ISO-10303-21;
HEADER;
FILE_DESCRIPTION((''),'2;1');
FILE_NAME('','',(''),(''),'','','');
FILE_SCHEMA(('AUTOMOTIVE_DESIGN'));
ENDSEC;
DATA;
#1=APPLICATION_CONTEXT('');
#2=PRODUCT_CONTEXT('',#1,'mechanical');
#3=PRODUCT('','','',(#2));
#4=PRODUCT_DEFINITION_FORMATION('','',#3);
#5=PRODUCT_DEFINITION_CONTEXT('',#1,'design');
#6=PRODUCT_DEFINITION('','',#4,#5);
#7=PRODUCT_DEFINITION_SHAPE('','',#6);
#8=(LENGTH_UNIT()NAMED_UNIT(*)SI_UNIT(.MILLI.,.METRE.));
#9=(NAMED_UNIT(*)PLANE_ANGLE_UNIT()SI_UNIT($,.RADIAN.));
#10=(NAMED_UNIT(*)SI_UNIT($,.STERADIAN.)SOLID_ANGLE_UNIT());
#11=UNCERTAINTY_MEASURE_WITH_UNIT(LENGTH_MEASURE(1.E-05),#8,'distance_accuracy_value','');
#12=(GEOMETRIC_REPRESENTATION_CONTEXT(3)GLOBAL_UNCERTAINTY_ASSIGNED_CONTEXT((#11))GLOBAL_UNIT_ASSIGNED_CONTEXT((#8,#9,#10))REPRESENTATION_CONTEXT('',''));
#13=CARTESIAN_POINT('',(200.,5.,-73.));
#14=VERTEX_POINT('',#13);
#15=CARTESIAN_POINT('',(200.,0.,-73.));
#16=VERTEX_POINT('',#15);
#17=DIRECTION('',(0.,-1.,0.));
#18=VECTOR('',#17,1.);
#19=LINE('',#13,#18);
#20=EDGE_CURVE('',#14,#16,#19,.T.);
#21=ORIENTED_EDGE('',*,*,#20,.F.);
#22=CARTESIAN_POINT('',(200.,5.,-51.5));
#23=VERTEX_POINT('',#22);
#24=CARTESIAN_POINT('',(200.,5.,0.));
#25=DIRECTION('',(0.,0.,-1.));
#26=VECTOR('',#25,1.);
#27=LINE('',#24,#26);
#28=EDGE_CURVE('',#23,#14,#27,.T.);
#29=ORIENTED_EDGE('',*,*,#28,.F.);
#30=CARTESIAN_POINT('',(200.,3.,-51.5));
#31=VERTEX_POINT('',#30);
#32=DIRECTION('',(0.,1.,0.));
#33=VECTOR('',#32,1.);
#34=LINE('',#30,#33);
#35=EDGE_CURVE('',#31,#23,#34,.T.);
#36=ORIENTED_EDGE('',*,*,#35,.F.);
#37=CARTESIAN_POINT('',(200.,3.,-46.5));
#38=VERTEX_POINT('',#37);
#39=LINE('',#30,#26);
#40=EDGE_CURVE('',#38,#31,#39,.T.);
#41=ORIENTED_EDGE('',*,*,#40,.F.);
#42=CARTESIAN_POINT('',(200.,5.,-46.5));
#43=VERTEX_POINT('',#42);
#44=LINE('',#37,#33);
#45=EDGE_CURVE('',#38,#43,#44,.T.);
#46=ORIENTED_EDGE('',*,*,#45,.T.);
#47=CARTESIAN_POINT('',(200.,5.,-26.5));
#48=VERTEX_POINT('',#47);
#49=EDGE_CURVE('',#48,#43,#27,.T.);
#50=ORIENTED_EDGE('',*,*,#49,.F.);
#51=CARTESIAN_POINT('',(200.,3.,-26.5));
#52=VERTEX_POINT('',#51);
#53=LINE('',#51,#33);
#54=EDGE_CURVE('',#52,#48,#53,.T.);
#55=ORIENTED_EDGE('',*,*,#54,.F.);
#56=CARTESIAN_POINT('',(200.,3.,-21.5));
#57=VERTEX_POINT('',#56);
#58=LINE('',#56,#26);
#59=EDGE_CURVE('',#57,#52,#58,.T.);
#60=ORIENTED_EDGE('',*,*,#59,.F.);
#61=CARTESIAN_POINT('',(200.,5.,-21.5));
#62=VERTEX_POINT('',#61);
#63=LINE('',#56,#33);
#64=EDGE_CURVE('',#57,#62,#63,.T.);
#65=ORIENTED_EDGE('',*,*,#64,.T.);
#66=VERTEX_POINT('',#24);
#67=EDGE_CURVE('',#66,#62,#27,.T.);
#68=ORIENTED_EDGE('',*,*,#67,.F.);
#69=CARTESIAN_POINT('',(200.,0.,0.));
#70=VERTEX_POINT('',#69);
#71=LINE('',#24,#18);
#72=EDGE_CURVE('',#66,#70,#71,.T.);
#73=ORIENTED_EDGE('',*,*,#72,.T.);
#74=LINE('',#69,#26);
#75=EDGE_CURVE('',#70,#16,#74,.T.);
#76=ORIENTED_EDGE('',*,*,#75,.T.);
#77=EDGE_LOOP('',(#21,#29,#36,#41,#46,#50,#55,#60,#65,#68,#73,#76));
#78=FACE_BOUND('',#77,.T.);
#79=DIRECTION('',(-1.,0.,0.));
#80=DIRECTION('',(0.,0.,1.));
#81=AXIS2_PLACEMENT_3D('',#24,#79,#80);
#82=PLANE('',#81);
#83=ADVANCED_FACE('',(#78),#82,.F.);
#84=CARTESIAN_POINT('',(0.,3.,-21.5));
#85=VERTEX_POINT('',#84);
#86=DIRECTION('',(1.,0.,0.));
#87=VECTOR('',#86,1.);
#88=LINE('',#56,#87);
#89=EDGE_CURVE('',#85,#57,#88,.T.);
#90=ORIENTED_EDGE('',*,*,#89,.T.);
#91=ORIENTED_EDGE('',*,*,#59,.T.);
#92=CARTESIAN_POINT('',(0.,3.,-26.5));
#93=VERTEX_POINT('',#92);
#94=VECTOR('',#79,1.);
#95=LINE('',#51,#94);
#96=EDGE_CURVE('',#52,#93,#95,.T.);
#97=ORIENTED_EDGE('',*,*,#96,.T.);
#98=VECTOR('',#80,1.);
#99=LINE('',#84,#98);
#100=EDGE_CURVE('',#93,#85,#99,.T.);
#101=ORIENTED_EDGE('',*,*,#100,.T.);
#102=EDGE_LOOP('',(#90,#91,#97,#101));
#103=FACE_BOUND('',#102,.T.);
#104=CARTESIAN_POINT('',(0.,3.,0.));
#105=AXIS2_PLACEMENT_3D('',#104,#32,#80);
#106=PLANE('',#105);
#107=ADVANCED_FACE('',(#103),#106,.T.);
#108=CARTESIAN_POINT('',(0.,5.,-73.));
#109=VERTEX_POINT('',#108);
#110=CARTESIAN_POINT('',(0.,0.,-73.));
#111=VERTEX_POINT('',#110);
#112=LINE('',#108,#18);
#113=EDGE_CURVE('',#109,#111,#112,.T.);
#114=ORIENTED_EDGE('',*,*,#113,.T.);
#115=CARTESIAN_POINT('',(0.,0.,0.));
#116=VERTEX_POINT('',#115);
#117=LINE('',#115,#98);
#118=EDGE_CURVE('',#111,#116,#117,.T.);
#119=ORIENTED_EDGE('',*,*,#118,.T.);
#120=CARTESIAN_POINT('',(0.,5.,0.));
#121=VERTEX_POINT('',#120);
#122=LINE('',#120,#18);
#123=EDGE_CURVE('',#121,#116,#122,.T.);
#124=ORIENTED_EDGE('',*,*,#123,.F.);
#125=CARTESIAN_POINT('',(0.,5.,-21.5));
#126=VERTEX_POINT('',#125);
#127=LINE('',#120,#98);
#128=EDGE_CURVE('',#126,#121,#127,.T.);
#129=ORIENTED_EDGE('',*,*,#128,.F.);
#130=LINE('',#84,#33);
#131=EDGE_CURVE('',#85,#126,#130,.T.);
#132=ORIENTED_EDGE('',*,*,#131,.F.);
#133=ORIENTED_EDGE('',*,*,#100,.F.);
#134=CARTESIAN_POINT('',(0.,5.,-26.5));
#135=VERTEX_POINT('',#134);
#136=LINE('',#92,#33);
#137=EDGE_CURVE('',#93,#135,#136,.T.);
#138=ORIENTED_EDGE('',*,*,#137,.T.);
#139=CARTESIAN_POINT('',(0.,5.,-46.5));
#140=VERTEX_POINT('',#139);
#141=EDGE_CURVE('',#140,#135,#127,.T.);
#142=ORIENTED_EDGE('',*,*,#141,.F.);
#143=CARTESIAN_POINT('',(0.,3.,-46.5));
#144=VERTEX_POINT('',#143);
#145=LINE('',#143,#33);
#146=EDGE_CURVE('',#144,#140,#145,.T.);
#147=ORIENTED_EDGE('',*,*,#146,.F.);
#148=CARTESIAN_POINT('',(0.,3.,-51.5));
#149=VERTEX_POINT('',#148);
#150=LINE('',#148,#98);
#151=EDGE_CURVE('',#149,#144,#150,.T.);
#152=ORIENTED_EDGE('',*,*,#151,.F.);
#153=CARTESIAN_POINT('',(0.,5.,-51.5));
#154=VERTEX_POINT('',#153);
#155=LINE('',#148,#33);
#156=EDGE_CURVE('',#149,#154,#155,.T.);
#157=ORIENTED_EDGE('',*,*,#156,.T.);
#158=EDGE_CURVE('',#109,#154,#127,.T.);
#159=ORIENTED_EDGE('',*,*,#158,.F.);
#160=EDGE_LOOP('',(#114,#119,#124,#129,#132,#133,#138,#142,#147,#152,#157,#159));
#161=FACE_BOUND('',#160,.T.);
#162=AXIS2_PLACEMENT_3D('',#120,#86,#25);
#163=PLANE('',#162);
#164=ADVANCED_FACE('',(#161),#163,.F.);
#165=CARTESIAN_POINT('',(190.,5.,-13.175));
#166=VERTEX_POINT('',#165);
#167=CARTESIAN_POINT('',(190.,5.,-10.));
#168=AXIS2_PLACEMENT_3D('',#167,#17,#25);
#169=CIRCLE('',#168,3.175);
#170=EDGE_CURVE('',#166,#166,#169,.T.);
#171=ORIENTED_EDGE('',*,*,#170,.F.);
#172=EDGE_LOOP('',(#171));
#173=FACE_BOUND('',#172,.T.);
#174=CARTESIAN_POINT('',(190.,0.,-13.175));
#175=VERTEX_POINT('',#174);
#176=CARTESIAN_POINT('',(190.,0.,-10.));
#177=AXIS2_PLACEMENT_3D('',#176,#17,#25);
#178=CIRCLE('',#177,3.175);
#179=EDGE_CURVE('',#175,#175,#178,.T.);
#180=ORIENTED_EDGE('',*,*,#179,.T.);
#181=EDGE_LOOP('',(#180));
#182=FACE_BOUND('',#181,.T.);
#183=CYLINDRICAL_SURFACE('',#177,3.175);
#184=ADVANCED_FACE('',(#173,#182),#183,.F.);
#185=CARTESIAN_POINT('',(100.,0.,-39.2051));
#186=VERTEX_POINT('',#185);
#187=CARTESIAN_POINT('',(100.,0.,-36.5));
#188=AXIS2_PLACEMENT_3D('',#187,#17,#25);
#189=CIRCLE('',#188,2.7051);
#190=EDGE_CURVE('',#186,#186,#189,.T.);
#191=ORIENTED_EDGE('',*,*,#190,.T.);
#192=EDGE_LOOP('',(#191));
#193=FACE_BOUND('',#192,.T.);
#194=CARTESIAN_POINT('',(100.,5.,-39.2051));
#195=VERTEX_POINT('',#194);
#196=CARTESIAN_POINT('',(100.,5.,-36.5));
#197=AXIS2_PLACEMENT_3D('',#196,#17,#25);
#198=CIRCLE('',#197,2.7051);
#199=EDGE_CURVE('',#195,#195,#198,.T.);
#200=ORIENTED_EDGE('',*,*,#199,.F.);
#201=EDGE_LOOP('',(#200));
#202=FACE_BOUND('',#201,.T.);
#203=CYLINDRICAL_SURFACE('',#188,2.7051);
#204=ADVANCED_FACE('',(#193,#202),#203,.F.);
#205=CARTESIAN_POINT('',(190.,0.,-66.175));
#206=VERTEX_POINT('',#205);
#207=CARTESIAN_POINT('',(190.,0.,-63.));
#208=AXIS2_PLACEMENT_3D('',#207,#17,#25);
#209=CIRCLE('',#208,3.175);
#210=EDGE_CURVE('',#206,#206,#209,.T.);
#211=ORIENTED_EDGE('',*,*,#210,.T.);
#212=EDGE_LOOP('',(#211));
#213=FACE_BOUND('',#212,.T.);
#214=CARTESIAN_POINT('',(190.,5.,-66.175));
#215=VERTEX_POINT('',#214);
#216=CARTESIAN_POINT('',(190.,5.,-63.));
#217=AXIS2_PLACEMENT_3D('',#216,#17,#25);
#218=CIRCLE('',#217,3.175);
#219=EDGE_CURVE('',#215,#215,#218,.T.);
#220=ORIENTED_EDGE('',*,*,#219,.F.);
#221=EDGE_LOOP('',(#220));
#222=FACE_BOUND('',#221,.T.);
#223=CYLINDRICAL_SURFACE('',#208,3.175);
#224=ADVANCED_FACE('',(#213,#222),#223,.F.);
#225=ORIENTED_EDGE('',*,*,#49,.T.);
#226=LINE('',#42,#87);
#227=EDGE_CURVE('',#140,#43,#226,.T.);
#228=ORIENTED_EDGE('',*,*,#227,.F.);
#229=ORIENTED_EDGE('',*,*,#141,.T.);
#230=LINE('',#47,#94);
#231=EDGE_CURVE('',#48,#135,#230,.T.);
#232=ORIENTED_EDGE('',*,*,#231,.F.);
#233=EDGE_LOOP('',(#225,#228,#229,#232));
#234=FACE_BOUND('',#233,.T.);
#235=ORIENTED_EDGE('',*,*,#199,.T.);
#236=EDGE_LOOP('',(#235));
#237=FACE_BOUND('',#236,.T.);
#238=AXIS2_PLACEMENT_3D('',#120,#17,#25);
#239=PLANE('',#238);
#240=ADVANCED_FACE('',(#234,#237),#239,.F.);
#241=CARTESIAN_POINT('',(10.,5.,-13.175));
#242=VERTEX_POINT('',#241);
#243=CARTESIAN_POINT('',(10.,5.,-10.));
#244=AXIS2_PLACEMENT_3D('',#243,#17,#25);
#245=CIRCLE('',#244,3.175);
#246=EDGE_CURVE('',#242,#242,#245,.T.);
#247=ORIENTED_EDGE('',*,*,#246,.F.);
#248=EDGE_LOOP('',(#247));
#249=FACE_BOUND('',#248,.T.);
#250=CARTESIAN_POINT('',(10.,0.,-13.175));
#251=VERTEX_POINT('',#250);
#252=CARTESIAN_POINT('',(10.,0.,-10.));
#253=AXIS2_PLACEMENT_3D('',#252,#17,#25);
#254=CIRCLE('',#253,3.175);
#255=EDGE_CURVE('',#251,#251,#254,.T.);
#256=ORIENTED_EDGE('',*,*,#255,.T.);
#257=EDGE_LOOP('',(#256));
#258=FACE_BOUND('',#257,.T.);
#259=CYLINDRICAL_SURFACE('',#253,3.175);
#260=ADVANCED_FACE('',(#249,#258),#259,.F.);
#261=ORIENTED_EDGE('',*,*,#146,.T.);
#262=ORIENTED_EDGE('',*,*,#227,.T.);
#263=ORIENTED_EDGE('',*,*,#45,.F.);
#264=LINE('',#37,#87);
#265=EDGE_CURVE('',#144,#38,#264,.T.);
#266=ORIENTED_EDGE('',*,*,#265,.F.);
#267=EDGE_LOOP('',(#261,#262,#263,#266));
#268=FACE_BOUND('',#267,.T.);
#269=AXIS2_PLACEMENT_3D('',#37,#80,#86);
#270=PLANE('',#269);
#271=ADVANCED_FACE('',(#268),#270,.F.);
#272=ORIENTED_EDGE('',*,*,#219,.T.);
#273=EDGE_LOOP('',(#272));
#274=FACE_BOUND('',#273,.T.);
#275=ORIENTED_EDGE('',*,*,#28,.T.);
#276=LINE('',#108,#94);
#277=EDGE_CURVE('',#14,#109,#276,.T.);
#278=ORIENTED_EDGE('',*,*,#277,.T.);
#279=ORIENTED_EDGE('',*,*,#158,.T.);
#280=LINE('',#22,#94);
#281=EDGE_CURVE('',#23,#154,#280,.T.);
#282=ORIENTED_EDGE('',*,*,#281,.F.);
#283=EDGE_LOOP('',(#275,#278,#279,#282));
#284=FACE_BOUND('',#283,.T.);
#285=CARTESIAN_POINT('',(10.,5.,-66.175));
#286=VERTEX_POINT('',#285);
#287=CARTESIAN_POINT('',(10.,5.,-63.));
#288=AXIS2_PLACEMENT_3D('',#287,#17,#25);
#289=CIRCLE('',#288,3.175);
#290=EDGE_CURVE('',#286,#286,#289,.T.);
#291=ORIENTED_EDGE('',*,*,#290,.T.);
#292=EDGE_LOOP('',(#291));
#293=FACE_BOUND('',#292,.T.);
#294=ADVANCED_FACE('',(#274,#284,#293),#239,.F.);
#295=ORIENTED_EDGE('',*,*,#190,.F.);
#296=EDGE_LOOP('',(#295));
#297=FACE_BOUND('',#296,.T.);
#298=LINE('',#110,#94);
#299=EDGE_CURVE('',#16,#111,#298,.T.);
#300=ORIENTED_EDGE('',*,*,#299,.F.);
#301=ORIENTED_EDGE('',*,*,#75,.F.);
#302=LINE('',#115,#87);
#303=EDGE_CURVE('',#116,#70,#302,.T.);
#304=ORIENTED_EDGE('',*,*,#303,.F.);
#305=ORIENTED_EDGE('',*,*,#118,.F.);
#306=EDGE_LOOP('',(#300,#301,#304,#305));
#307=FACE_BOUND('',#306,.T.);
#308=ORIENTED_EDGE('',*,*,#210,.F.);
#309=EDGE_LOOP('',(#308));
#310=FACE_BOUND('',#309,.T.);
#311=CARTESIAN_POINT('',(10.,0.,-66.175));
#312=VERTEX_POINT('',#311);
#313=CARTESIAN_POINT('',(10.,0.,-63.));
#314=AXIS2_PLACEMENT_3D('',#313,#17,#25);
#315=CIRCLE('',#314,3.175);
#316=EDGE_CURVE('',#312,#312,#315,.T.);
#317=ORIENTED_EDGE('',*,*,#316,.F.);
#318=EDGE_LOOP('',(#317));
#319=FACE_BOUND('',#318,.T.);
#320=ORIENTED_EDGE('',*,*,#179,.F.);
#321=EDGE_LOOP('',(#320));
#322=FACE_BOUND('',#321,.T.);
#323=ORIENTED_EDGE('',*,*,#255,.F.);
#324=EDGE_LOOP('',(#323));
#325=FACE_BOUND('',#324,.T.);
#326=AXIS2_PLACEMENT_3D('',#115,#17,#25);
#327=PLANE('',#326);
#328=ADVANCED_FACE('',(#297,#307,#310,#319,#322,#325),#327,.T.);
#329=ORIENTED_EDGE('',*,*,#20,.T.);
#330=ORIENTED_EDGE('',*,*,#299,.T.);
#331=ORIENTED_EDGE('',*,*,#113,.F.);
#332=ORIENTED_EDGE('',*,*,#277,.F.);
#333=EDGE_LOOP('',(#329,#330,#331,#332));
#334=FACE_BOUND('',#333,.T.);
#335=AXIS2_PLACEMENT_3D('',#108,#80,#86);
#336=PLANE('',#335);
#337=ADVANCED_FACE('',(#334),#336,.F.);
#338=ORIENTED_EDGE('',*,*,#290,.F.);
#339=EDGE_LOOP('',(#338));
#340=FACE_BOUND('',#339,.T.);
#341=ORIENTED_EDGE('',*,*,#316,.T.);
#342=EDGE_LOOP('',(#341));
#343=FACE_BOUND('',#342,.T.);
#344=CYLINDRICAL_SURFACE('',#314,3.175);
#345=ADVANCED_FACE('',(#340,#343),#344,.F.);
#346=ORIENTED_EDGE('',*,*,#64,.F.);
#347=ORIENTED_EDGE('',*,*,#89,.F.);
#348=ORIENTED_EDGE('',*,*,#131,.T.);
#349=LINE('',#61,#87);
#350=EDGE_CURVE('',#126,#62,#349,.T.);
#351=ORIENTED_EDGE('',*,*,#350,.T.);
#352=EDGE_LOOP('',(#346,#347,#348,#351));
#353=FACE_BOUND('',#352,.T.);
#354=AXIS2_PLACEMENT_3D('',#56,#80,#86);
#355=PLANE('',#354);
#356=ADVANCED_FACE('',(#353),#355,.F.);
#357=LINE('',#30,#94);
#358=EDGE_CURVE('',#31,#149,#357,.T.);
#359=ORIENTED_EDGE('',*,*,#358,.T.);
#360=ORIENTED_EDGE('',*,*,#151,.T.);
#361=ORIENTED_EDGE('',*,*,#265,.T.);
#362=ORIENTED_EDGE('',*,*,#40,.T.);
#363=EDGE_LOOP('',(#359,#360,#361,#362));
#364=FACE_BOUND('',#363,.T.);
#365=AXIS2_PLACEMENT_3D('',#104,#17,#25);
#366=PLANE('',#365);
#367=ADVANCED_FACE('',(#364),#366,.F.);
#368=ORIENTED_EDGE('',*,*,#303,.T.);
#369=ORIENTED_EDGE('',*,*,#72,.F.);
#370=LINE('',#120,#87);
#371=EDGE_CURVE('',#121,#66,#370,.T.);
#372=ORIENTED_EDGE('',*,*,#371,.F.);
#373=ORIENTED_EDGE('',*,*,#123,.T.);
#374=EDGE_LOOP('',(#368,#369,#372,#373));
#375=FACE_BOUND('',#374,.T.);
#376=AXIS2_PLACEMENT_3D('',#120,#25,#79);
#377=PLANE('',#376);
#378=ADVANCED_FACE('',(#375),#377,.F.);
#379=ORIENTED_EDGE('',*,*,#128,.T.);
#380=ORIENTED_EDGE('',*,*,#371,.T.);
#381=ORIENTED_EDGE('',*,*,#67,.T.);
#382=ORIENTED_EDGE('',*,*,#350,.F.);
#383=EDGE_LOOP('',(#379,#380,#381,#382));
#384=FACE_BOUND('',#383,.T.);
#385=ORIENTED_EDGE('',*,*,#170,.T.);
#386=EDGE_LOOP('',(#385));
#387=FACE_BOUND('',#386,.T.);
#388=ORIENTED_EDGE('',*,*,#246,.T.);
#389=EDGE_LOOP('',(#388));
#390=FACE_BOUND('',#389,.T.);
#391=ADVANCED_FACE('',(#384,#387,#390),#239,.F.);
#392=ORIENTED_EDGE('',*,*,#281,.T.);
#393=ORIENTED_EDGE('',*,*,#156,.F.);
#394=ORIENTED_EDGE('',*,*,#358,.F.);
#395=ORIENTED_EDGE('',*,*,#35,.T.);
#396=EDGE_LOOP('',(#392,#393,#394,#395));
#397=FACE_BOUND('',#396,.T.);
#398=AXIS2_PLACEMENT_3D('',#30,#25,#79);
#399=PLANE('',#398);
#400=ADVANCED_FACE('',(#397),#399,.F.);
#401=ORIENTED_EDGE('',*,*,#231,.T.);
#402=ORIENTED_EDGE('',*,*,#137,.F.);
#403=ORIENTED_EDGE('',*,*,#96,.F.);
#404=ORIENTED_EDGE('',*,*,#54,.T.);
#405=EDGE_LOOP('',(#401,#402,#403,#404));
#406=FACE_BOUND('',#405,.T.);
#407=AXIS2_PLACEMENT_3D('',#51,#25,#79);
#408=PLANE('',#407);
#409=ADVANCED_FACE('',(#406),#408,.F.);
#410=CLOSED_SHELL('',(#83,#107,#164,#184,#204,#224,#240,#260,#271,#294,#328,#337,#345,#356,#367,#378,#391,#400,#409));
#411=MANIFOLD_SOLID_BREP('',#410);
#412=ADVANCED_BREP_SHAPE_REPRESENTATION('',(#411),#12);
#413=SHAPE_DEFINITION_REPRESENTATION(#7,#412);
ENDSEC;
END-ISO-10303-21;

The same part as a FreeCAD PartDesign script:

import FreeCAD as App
import Part
import Sketcher
from FreeCAD import Vector
Q = App.Units.Quantity

doc = App.newDocument("Part")
body = doc.addObject("PartDesign::Body", "Body")

# Sketch on XZ plane
sketch1 = body.newObject("Sketcher::SketchObject", "Sketch")
sketch1.AttachmentSupport = (doc.getObject("XZ_Plane"), [""])
sketch1.MapMode = "FlatFace"
sketch1.addGeometry([
    Part.LineSegment(Vector(0, -73, 0), Vector(0, 0, 0)),
    Part.LineSegment(Vector(0, 0, 0), Vector(200, 0, 0)),
    Part.LineSegment(Vector(200, 0, 0), Vector(200, -73, 0)),
    Part.LineSegment(Vector(200, -73, 0), Vector(0, -73, 0)),
], False)
sketch1.addConstraint([
    Sketcher.Constraint("Coincident", 0, 2, 1, 1),
    Sketcher.Constraint("Coincident", 1, 2, 2, 1),
    Sketcher.Constraint("Coincident", 2, 2, 3, 1),
    Sketcher.Constraint("Coincident", 3, 2, 0, 1),
    Sketcher.Constraint("Vertical", 0),
    Sketcher.Constraint("Horizontal", 1),
    Sketcher.Constraint("Vertical", 2),
    Sketcher.Constraint("Horizontal", 3),
    Sketcher.Constraint("Coincident", 0, 2, -1, 1),
    Sketcher.Constraint("DistanceX", 1, 1, 1, 2, Q("200 mm")),
    Sketcher.Constraint("DistanceY", 0, 1, 0, 2, Q("73 mm")),
])
pad1 = body.newObject("PartDesign::Pad", "Pad")
pad1.Profile = sketch1
pad1.Length = 5
pad1.Reversed = True

# Sketch on XZ plane
sketch2 = body.newObject("Sketcher::SketchObject", "Sketch001")
sketch2.AttachmentSupport = (doc.getObject("XZ_Plane"), [""])
sketch2.MapMode = "FlatFace"
sketch2.addGeometry([
    Part.Circle(Vector(10, -10, 0), Vector(0, 0, 1), 3.2),
    Part.Circle(Vector(10, -63, 0), Vector(0, 0, 1), 3.2),
    Part.Circle(Vector(190, -63, 0), Vector(0, 0, 1), 3.2),
    Part.Circle(Vector(190, -10, 0), Vector(0, 0, 1), 3.2),
], False)
sketch2.addConstraint([
    Sketcher.Constraint("Equal", 0, 1),
    Sketcher.Constraint("Equal", 1, 2),
    Sketcher.Constraint("Equal", 2, 3),
    Sketcher.Constraint("Horizontal", 1, 3, 2, 3),
    Sketcher.Constraint("Horizontal", 0, 3, 3, 3),
    Sketcher.Constraint("Vertical", 0, 3, 1, 3),
    Sketcher.Constraint("Vertical", 2, 3, 3, 3),
    Sketcher.Constraint("Diameter", 0, Q("6.35 mm")),
    Sketcher.Constraint("DistanceX", -1, 1, 0, 3, Q("10 mm")),
    Sketcher.Constraint("DistanceY", 0, 3, -1, 1, Q("10 mm")),
    Sketcher.Constraint("DistanceY", 1, 3, -1, 1, Q("63 mm")),
    Sketcher.Constraint("DistanceX", -1, 1, 2, 3, Q("190 mm")),
])
doc.recompute()
hole = body.newObject("PartDesign::Hole", "Hole")
hole.Profile = sketch2
hole.ThreadType = "None"
hole.Diameter = 6.35
hole.DepthType = "ThroughAll"

# Sketch on XZ plane
sketch3 = body.newObject("Sketcher::SketchObject", "Sketch002")
sketch3.AttachmentSupport = (doc.getObject("XZ_Plane"), [""])
sketch3.MapMode = "FlatFace"
sketch3.addGeometry(Part.Circle(Vector(100, -36.5, 0), Vector(0, 0, 1), 2.7), False)
sketch3.addConstraint([
    Sketcher.Constraint("DistanceX", -1, 1, 0, 3, Q("100 mm")),
    Sketcher.Constraint("Diameter", 0, Q("5.4102 mm")),
    Sketcher.Constraint("DistanceY", 0, 3, -1, 1, Q("36.5 mm")),
])
doc.recompute()
hole2 = body.newObject("PartDesign::Hole", "Hole001")
hole2.Profile = sketch3
hole2.ThreadType = "None"
hole2.Diameter = 5.4102
hole2.DepthType = "ThroughAll"

# Sketch on XZ plane
sketch4 = body.newObject("Sketcher::SketchObject", "Sketch003")
sketch4.AttachmentSupport = (doc.getObject("XZ_Plane"), [""])
sketch4.MapMode = "FlatFace"
sketch4.AttachmentOffset = App.Placement(Vector(0, 0, -5), App.Rotation())
sketch4.addGeometry([
    Part.LineSegment(Vector(0, -52, 0), Vector(0, -46, 0)),  # 0
    Part.LineSegment(Vector(0, -46, 0), Vector(200, -46, 0)),  # 1
    Part.LineSegment(Vector(200, -46, 0), Vector(200, -52, 0)),  # 2
    Part.LineSegment(Vector(200, -52, 0), Vector(0, -52, 0)),  # 3
    Part.LineSegment(Vector(0, -26, 0), Vector(0, -22, 0)),  # 4
    Part.LineSegment(Vector(0, -22, 0), Vector(200, -22, 0)),  # 5
    Part.LineSegment(Vector(200, -22, 0), Vector(200, -26, 0)),  # 6
    Part.LineSegment(Vector(200, -26, 0), Vector(0, -26, 0)),  # 7
], False)
sketch4.addConstraint([
    Sketcher.Constraint("Coincident", 0, 2, 1, 1),
    Sketcher.Constraint("Coincident", 1, 2, 2, 1),
    Sketcher.Constraint("Coincident", 2, 2, 3, 1),
    Sketcher.Constraint("Coincident", 3, 2, 0, 1),
    Sketcher.Constraint("Coincident", 4, 2, 5, 1),
    Sketcher.Constraint("Coincident", 5, 2, 6, 1),
    Sketcher.Constraint("Coincident", 6, 2, 7, 1),
    Sketcher.Constraint("Coincident", 7, 2, 4, 1),
    Sketcher.Constraint("Vertical", 0),
    Sketcher.Constraint("Horizontal", 1),
    Sketcher.Constraint("Vertical", 2),
    Sketcher.Constraint("Horizontal", 3),
    Sketcher.Constraint("Vertical", 4),
    Sketcher.Constraint("Horizontal", 5),
    Sketcher.Constraint("Vertical", 6),
    Sketcher.Constraint("Horizontal", 7),
    Sketcher.Constraint("PointOnObject", 0, 2, -2),
    Sketcher.Constraint("PointOnObject", 4, 2, -2),
    Sketcher.Constraint("Vertical", 2, 2, 5, 2),
    Sketcher.Constraint("Equal", 2, 4),
    Sketcher.Constraint("DistanceX", 1, 1, 1, 2, Q("200 mm")),
    Sketcher.Constraint("DistanceY", 0, 1, 0, 2, Q("5 mm")),
    Sketcher.Constraint("DistanceY", 0, 2, 4, 2, Q("25 mm")),
    Sketcher.Constraint("DistanceY", 0, 2, -1, 1, Q("46.5 mm")),
])
pocket1 = body.newObject("PartDesign::Pocket", "Pocket")
pocket1.Profile = sketch4
pocket1.Length = 2
pocket1.Reversed = True

doc.recompute()
